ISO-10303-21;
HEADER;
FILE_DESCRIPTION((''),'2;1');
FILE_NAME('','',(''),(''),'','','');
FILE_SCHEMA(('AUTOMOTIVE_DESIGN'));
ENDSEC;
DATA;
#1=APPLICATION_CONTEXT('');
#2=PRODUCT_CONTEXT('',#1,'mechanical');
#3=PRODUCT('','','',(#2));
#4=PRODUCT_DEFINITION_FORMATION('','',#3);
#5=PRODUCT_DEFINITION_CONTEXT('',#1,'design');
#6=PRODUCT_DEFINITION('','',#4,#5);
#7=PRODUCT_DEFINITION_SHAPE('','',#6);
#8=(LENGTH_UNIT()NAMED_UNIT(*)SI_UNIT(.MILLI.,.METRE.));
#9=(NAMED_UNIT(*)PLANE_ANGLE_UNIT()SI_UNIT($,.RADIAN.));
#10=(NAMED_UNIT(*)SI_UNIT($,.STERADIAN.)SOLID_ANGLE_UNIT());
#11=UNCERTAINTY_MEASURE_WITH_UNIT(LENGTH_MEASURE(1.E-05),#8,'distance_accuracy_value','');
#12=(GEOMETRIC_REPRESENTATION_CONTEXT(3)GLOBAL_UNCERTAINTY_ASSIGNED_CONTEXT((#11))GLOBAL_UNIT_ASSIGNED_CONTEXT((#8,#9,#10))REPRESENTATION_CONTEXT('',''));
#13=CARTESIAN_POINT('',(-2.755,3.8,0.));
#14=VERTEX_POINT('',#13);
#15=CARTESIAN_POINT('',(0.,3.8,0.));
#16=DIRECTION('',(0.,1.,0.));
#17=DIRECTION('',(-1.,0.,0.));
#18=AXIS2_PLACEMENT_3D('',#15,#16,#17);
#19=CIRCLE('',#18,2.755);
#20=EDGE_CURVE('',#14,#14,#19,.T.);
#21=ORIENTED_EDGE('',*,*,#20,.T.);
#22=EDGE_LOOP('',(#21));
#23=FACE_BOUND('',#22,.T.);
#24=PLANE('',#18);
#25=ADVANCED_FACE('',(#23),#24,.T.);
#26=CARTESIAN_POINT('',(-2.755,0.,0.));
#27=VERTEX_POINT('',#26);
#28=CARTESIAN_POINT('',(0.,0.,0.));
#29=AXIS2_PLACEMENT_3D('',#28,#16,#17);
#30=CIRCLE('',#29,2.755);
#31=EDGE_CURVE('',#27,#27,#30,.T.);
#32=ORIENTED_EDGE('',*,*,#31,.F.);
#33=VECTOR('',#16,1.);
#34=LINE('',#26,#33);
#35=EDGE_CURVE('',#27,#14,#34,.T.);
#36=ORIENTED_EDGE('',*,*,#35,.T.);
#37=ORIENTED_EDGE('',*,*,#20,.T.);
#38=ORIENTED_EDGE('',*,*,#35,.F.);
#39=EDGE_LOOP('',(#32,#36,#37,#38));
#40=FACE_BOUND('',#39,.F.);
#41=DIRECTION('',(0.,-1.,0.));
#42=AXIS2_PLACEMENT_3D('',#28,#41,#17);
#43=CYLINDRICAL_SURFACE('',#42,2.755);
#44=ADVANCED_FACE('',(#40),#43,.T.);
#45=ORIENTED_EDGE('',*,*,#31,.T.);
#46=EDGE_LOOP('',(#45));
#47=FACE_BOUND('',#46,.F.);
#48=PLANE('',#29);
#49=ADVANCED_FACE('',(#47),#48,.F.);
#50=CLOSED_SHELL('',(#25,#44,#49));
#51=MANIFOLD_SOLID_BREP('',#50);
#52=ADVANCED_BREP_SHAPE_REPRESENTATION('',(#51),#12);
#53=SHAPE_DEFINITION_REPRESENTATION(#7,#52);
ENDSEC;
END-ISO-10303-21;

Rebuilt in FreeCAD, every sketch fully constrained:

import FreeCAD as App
import Part
import Sketcher
Q = App.Units.Quantity

doc = App.newDocument("Part")
body = doc.addObject("PartDesign::Body", "Body")

sketch1 = body.newObject("Sketcher::SketchObject", "Sketch")
sketch1.AttachmentSupport = (doc.getObject("XZ_Plane"), [""])
sketch1.MapMode = "FlatFace"
sketch1.addGeometry(Part.Circle(App.Vector(0, 0, 0), App.Vector(0, 0, 1), 2.755), False)
sketch1.addConstraint(Sketcher.Constraint("Coincident", 0, 3, -1, 1))
sketch1.addConstraint(Sketcher.Constraint("Diameter", 0, Q("5.51 mm")))
pad1 = body.newObject("PartDesign::Pad", "Pad")
pad1.Profile = sketch1
pad1.Length = 3.8
pad1.Reversed = True

doc.recompute()
